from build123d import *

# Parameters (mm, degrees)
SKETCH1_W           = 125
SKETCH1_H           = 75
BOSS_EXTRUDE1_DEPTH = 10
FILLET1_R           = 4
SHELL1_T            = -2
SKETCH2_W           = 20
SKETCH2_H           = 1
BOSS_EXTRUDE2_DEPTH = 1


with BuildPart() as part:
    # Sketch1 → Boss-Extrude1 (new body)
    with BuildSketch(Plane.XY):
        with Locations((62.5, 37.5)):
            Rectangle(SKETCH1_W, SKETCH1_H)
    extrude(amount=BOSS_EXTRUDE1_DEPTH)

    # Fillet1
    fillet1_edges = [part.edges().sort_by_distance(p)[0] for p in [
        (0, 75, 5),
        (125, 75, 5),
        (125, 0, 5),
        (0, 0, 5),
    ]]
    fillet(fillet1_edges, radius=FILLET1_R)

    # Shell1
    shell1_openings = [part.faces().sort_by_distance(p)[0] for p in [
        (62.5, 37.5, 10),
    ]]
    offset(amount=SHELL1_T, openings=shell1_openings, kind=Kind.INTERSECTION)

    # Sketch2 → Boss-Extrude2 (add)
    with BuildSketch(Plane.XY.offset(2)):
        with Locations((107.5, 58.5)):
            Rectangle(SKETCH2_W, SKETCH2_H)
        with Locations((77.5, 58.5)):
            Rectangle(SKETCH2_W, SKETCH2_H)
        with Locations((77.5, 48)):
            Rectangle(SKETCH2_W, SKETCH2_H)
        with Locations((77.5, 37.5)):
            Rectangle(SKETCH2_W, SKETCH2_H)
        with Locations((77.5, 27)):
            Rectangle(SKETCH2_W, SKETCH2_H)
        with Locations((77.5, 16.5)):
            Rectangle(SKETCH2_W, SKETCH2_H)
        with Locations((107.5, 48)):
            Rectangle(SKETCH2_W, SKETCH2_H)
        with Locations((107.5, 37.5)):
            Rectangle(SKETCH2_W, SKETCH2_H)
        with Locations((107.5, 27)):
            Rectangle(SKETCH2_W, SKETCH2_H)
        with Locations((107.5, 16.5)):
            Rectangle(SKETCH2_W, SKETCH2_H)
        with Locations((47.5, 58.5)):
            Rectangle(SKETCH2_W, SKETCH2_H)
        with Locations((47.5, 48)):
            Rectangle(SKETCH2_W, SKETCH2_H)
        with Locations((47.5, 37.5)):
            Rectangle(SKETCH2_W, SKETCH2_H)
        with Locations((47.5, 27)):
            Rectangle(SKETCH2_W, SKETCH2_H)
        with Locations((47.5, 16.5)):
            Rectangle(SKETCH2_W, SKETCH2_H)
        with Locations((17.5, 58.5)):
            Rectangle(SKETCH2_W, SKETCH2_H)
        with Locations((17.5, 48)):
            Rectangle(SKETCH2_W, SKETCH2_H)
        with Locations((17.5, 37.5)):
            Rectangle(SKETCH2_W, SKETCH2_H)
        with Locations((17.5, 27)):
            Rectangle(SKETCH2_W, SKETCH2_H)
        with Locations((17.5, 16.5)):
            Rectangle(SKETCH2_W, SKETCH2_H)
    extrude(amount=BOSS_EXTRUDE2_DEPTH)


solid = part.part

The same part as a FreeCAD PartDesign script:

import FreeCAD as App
import Part
import Sketcher
Q = App.Units.Quantity


def edges_at(feature, points):
    """Names of the edges that pass closest to the given points."""
    edges = feature.Shape.Edges
    near = lambda p: min(range(len(edges)), key=lambda i: edges[i].distToShape(Part.Vertex(*p))[0])
    return sorted({f"Edge{near(p) + 1}" for p in points})


def faces_at(feature, points):
    """Names of the faces that lie closest to the given points."""
    faces = feature.Shape.Faces
    near = lambda p: min(range(len(faces)), key=lambda i: faces[i].distToShape(Part.Vertex(*p))[0])
    return sorted({f"Face{near(p) + 1}" for p in points})

doc = App.newDocument("Part")
body = doc.addObject("PartDesign::Body", "Body")

sketch1 = body.newObject("Sketcher::SketchObject", "Sketch")
sketch1.AttachmentSupport = (doc.getObject("XY_Plane"), [""])
sketch1.MapMode = "FlatFace"
sketch1.addGeometry([
    Part.LineSegment(App.Vector(0, 75, 0), App.Vector(0, 0, 0)),
    Part.LineSegment(App.Vector(0, 0, 0), App.Vector(125, 0, 0)),
    Part.LineSegment(App.Vector(125, 0, 0), App.Vector(125, 75, 0)),
    Part.LineSegment(App.Vector(125, 75, 0), App.Vector(0, 75, 0)),
], False)
sketch1.addConstraint([
    Sketcher.Constraint("Coincident", 0, 2, 1, 1),
    Sketcher.Constraint("Coincident", 1, 2, 2, 1),
    Sketcher.Constraint("Coincident", 2, 2, 3, 1),
    Sketcher.Constraint("Coincident", 3, 2, 0, 1),
    Sketcher.Constraint("Vertical", 0),
    Sketcher.Constraint("Horizontal", 1),
    Sketcher.Constraint("Vertical", 2),
    Sketcher.Constraint("Horizontal", 3),
    Sketcher.Constraint("Coincident", 0, 2, -1, 1),
    Sketcher.Constraint("DistanceX", 1, 1, 1, 2, Q("125 mm")),
    Sketcher.Constraint("DistanceY", 0, 2, 0, 1, Q("75 mm")),
])
pad1 = body.newObject("PartDesign::Pad", "Pad")
pad1.Profile = sketch1
pad1.Length = 10
doc.recompute()

fillet = body.newObject("PartDesign::Fillet", "Fillet")
fillet.Base = (pad1, edges_at(pad1, [
    (0, 75, 5),
    (125, 75, 5),
    (125, 0, 5),
    (0, 0, 5),
]))
fillet.Radius = 4
doc.recompute()

thickness = body.newObject("PartDesign::Thickness", "Thickness")
thickness.Base = (fillet, faces_at(fillet, [(62.5, 37.5, 10)]))
thickness.Value = 2
thickness.Reversed = True
thickness.Join = "Intersection"

sketch2 = body.newObject("Sketcher::SketchObject", "Sketch001")
sketch2.AttachmentSupport = (doc.getObject("XY_Plane"), [""])
sketch2.MapMode = "FlatFace"
sketch2.AttachmentOffset = App.Placement(App.Vector(0, 0, 2), App.Rotation())
sketch2.addGeometry([
    Part.LineSegment(App.Vector(97.5, 59, 0), App.Vector(97.5, 58, 0)),
    Part.LineSegment(App.Vector(97.5, 58, 0), App.Vector(117.5, 58, 0)),
    Part.LineSegment(App.Vector(117.5, 58, 0), App.Vector(117.5, 59, 0)),
    Part.LineSegment(App.Vector(117.5, 59, 0), App.Vector(97.5, 59, 0)),
    Part.LineSegment(App.Vector(67.5, 59, 0), App.Vector(67.5, 58, 0)),
    Part.LineSegment(App.Vector(67.5, 58, 0), App.Vector(87.5, 58, 0)),
    Part.LineSegment(App.Vector(87.5, 58, 0), App.Vector(87.5, 59, 0)),
    Part.LineSegment(App.Vector(87.5, 59, 0), App.Vector(67.5, 59, 0)),
    Part.LineSegment(App.Vector(67.5, 48.5, 0), App.Vector(67.5, 47.5, 0)),
    Part.LineSegment(App.Vector(67.5, 47.5, 0), App.Vector(87.5, 47.5, 0)),
    Part.LineSegment(App.Vector(87.5, 47.5, 0), App.Vector(87.5, 48.5, 0)),
    Part.LineSegment(App.Vector(87.5, 48.5, 0), App.Vector(67.5, 48.5, 0)),
    Part.LineSegment(App.Vector(67.5, 38, 0), App.Vector(67.5, 37, 0)),
    Part.LineSegment(App.Vector(67.5, 37, 0), App.Vector(87.5, 37, 0)),
    Part.LineSegment(App.Vector(87.5, 37, 0), App.Vector(87.5, 38, 0)),
    Part.LineSegment(App.Vector(87.5, 38, 0), App.Vector(67.5, 38, 0)),
    Part.LineSegment(App.Vector(67.5, 27.5, 0), App.Vector(67.5, 26.5, 0)),
    Part.LineSegment(App.Vector(67.5, 26.5, 0), App.Vector(87.5, 26.5, 0)),
    Part.LineSegment(App.Vector(87.5, 26.5, 0), App.Vector(87.5, 27.5, 0)),
    Part.LineSegment(App.Vector(87.5, 27.5, 0), App.Vector(67.5, 27.5, 0)),
    Part.LineSegment(App.Vector(67.5, 17, 0), App.Vector(67.5, 16, 0)),
    Part.LineSegment(App.Vector(67.5, 16, 0), App.Vector(87.5, 16, 0)),
    Part.LineSegment(App.Vector(87.5, 16, 0), App.Vector(87.5, 17, 0)),
    Part.LineSegment(App.Vector(87.5, 17, 0), App.Vector(67.5, 17, 0)),
    Part.LineSegment(App.Vector(97.5, 48.5, 0), App.Vector(97.5, 47.5, 0)),
    Part.LineSegment(App.Vector(97.5, 47.5, 0), App.Vector(117.5, 47.5, 0)),
    Part.LineSegment(App.Vector(117.5, 47.5, 0), App.Vector(117.5, 48.5, 0)),
    Part.LineSegment(App.Vector(117.5, 48.5, 0), App.Vector(97.5, 48.5, 0)),
    Part.LineSegment(App.Vector(97.5, 38, 0), App.Vector(97.5, 37, 0)),
    Part.LineSegment(App.Vector(97.5, 37, 0), App.Vector(117.5, 37, 0)),
    Part.LineSegment(App.Vector(117.5, 37, 0), App.Vector(117.5, 38, 0)),
    Part.LineSegment(App.Vector(117.5, 38, 0), App.Vector(97.5, 38, 0)),
    Part.LineSegment(App.Vector(97.5, 27.5, 0), App.Vector(97.5, 26.5, 0)),
    Part.LineSegment(App.Vector(97.5, 26.5, 0), App.Vector(117.5, 26.5, 0)),
    Part.LineSegment(App.Vector(117.5, 26.5, 0), App.Vector(117.5, 27.5, 0)),
    Part.LineSegment(App.Vector(117.5, 27.5, 0), App.Vector(97.5, 27.5, 0)),
    Part.LineSegment(App.Vector(97.5, 17, 0), App.Vector(97.5, 16, 0)),
    Part.LineSegment(App.Vector(97.5, 16, 0), App.Vector(117.5, 16, 0)),
    Part.LineSegment(App.Vector(117.5, 16, 0), App.Vector(117.5, 17, 0)),
    Part.LineSegment(App.Vector(117.5, 17, 0), App.Vector(97.5, 17, 0)),
    Part.LineSegment(App.Vector(37.5, 59, 0), App.Vector(37.5, 58, 0)),
    Part.LineSegment(App.Vector(37.5, 58, 0), App.Vector(57.5, 58, 0)),
    Part.LineSegment(App.Vector(57.5, 58, 0), App.Vector(57.5, 59, 0)),
    Part.LineSegment(App.Vector(57.5, 59, 0), App.Vector(37.5, 59, 0)),
    Part.LineSegment(App.Vector(37.5, 48.5, 0), App.Vector(37.5, 47.5, 0)),
    Part.LineSegment(App.Vector(37.5, 47.5, 0), App.Vector(57.5, 47.5, 0)),
    Part.LineSegment(App.Vector(57.5, 47.5, 0), App.Vector(57.5, 48.5, 0)),
    Part.LineSegment(App.Vector(57.5, 48.5, 0), App.Vector(37.5, 48.5, 0)),
    Part.LineSegment(App.Vector(37.5, 38, 0), App.Vector(37.5, 37, 0)),
    Part.LineSegment(App.Vector(37.5, 37, 0), App.Vector(57.5, 37, 0)),
    Part.LineSegment(App.Vector(57.5, 37, 0), App.Vector(57.5, 38, 0)),
    Part.LineSegment(App.Vector(57.5, 38, 0), App.Vector(37.5, 38, 0)),
    Part.LineSegment(App.Vector(37.5, 27.5, 0), App.Vector(37.5, 26.5, 0)),
    Part.LineSegment(App.Vector(37.5, 26.5, 0), App.Vector(57.5, 26.5, 0)),
    Part.LineSegment(App.Vector(57.5, 26.5, 0), App.Vector(57.5, 27.5, 0)),
    Part.LineSegment(App.Vector(57.5, 27.5, 0), App.Vector(37.5, 27.5, 0)),
    Part.LineSegment(App.Vector(37.5, 17, 0), App.Vector(37.5, 16, 0)),
    Part.LineSegment(App.Vector(37.5, 16, 0), App.Vector(57.5, 16, 0)),
    Part.LineSegment(App.Vector(57.5, 16, 0), App.Vector(57.5, 17, 0)),
    Part.LineSegment(App.Vector(57.5, 17, 0), App.Vector(37.5, 17, 0)),
    Part.LineSegment(App.Vector(7.5, 59, 0), App.Vector(7.5, 58, 0)),
    Part.LineSegment(App.Vector(7.5, 58, 0), App.Vector(27.5, 58, 0)),
    Part.LineSegment(App.Vector(27.5, 58, 0), App.Vector(27.5, 59, 0)),
    Part.LineSegment(App.Vector(27.5, 59, 0), App.Vector(7.5, 59, 0)),
    Part.LineSegment(App.Vector(7.5, 48.5, 0), App.Vector(7.5, 47.5, 0)),
    Part.LineSegment(App.Vector(7.5, 47.5, 0), App.Vector(27.5, 47.5, 0)),
    Part.LineSegment(App.Vector(27.5, 47.5, 0), App.Vector(27.5, 48.5, 0)),
    Part.LineSegment(App.Vector(27.5, 48.5, 0), App.Vector(7.5, 48.5, 0)),
    Part.LineSegment(App.Vector(7.5, 38, 0), App.Vector(7.5, 37, 0)),
    Part.LineSegment(App.Vector(7.5, 37, 0), App.Vector(27.5, 37, 0)),
    Part.LineSegment(App.Vector(27.5, 37, 0), App.Vector(27.5, 38, 0)),
    Part.LineSegment(App.Vector(27.5, 38, 0), App.Vector(7.5, 38, 0)),
    Part.LineSegment(App.Vector(7.5, 27.5, 0), App.Vector(7.5, 26.5, 0)),
    Part.LineSegment(App.Vector(7.5, 26.5, 0), App.Vector(27.5, 26.5, 0)),
    Part.LineSegment(App.Vector(27.5, 26.5, 0), App.Vector(27.5, 27.5, 0)),
    Part.LineSegment(App.Vector(27.5, 27.5, 0), App.Vector(7.5, 27.5, 0)),
    Part.LineSegment(App.Vector(7.5, 17, 0), App.Vector(7.5, 16, 0)),
    Part.LineSegment(App.Vector(7.5, 16, 0), App.Vector(27.5, 16, 0)),
    Part.LineSegment(App.Vector(27.5, 16, 0), App.Vector(27.5, 17, 0)),
    Part.LineSegment(App.Vector(27.5, 17, 0), App.Vector(7.5, 17, 0)),
], False)
sketch2.addConstraint([
    Sketcher.Constraint("Coincident", 0, 2, 1, 1),
    Sketcher.Constraint("Coincident", 1, 2, 2, 1),
    Sketcher.Constraint("Coincident", 2, 2, 3, 1),
    Sketcher.Constraint("Coincident", 3, 2, 0, 1),
    Sketcher.Constraint("Coincident", 4, 2, 5, 1),
    Sketcher.Constraint("Coincident", 5, 2, 6, 1),
    Sketcher.Constraint("Coincident", 6, 2, 7, 1),
    Sketcher.Constraint("Coincident", 7, 2, 4, 1),
    Sketcher.Constraint("Coincident", 8, 2, 9, 1),
    Sketcher.Constraint("Coincident", 9, 2, 10, 1),
    Sketcher.Constraint("Coincident", 10, 2, 11, 1),
    Sketcher.Constraint("Coincident", 11, 2, 8, 1),
    Sketcher.Constraint("Coincident", 12, 2, 13, 1),
    Sketcher.Constraint("Coincident", 13, 2, 14, 1),
    Sketcher.Constraint("Coincident", 14, 2, 15, 1),
    Sketcher.Constraint("Coincident", 15, 2, 12, 1),
    Sketcher.Constraint("Coincident", 16, 2, 17, 1),
    Sketcher.Constraint("Coincident", 17, 2, 18, 1),
    Sketcher.Constraint("Coincident", 18, 2, 19, 1),
    Sketcher.Constraint("Coincident", 19, 2, 16, 1),
    Sketcher.Constraint("Coincident", 20, 2, 21, 1),
    Sketcher.Constraint("Coincident", 21, 2, 22, 1),
    Sketcher.Constraint("Coincident", 22, 2, 23, 1),
    Sketcher.Constraint("Coincident", 23, 2, 20, 1),
    Sketcher.Constraint("Coincident", 24, 2, 25, 1),
    Sketcher.Constraint("Coincident", 25, 2, 26, 1),
    Sketcher.Constraint("Coincident", 26, 2, 27, 1),
    Sketcher.Constraint("Coincident", 27, 2, 24, 1),
    Sketcher.Constraint("Coincident", 28, 2, 29, 1),
    Sketcher.Constraint("Coincident", 29, 2, 30, 1),
    Sketcher.Constraint("Coincident", 30, 2, 31, 1),
    Sketcher.Constraint("Coincident", 31, 2, 28, 1),
    Sketcher.Constraint("Coincident", 32, 2, 33, 1),
    Sketcher.Constraint("Coincident", 33, 2, 34, 1),
    Sketcher.Constraint("Coincident", 34, 2, 35, 1),
    Sketcher.Constraint("Coincident", 35, 2, 32, 1),
    Sketcher.Constraint("Coincident", 36, 2, 37, 1),
    Sketcher.Constraint("Coincident", 37, 2, 38, 1),
    Sketcher.Constraint("Coincident", 38, 2, 39, 1),
    Sketcher.Constraint("Coincident", 39, 2, 36, 1),
    Sketcher.Constraint("Coincident", 40, 2, 41, 1),
    Sketcher.Constraint("Coincident", 41, 2, 42, 1),
    Sketcher.Constraint("Coincident", 42, 2, 43, 1),
    Sketcher.Constraint("Coincident", 43, 2, 40, 1),
    Sketcher.Constraint("Coincident", 44, 2, 45, 1),
    Sketcher.Constraint("Coincident", 45, 2, 46, 1),
    Sketcher.Constraint("Coincident", 46, 2, 47, 1),
    Sketcher.Constraint("Coincident", 47, 2, 44, 1),
    Sketcher.Constraint("Coincident", 48, 2, 49, 1),
    Sketcher.Constraint("Coincident", 49, 2, 50, 1),
    Sketcher.Constraint("Coincident", 50, 2, 51, 1),
    Sketcher.Constraint("Coincident", 51, 2, 48, 1),
    Sketcher.Constraint("Coincident", 52, 2, 53, 1),
    Sketcher.Constraint("Coincident", 53, 2, 54, 1),
    Sketcher.Constraint("Coincident", 54, 2, 55, 1),
    Sketcher.Constraint("Coincident", 55, 2, 52, 1),
    Sketcher.Constraint("Coincident", 56, 2, 57, 1),
    Sketcher.Constraint("Coincident", 57, 2, 58, 1),
    Sketcher.Constraint("Coincident", 58, 2, 59, 1),
    Sketcher.Constraint("Coincident", 59, 2, 56, 1),
    Sketcher.Constraint("Coincident", 60, 2, 61, 1),
    Sketcher.Constraint("Coincident", 61, 2, 62, 1),
    Sketcher.Constraint("Coincident", 62, 2, 63, 1),
    Sketcher.Constraint("Coincident", 63, 2, 60, 1),
    Sketcher.Constraint("Coincident", 64, 2, 65, 1),
    Sketcher.Constraint("Coincident", 65, 2, 66, 1),
    Sketcher.Constraint("Coincident", 66, 2, 67, 1),
    Sketcher.Constraint("Coincident", 67, 2, 64, 1),
    Sketcher.Constraint("Coincident", 68, 2, 69, 1),
    Sketcher.Constraint("Coincident", 69, 2, 70, 1),
    Sketcher.Constraint("Coincident", 70, 2, 71, 1),
    Sketcher.Constraint("Coincident", 71, 2, 68, 1),
    Sketcher.Constraint("Coincident", 72, 2, 73, 1),
    Sketcher.Constraint("Coincident", 73, 2, 74, 1),
    Sketcher.Constraint("Coincident", 74, 2, 75, 1),
    Sketcher.Constraint("Coincident", 75, 2, 72, 1),
    Sketcher.Constraint("Coincident", 76, 2, 77, 1),
    Sketcher.Constraint("Coincident", 77, 2, 78, 1),
    Sketcher.Constraint("Coincident", 78, 2, 79, 1),
    Sketcher.Constraint("Coincident", 79, 2, 76, 1),
    Sketcher.Constraint("Vertical", 0),
    Sketcher.Constraint("Horizontal", 1),
    Sketcher.Constraint("Vertical", 2),
    Sketcher.Constraint("Horizontal", 3),
    Sketcher.Constraint("Vertical", 4),
    Sketcher.Constraint("Horizontal", 5),
    Sketcher.Constraint("Vertical", 6),
    Sketcher.Constraint("Horizontal", 7),
    Sketcher.Constraint("Vertical", 8),
    Sketcher.Constraint("Horizontal", 9),
    Sketcher.Constraint("Vertical", 10),
    Sketcher.Constraint("Horizontal", 11),
    Sketcher.Constraint("Vertical", 12),
    Sketcher.Constraint("Horizontal", 13),
    Sketcher.Constraint("Vertical", 14),
    Sketcher.Constraint("Horizontal", 15),
    Sketcher.Constraint("Vertical", 16),
    Sketcher.Constraint("Horizontal", 17),
    Sketcher.Constraint("Vertical", 18),
    Sketcher.Constraint("Horizontal", 19),
    Sketcher.Constraint("Vertical", 20),
    Sketcher.Constraint("Horizontal", 21),
    Sketcher.Constraint("Vertical", 22),
    Sketcher.Constraint("Horizontal", 23),
    Sketcher.Constraint("Vertical", 24),
    Sketcher.Constraint("Horizontal", 25),
    Sketcher.Constraint("Vertical", 26),
    Sketcher.Constraint("Horizontal", 27),
    Sketcher.Constraint("Vertical", 28),
    Sketcher.Constraint("Horizontal", 29),
    Sketcher.Constraint("Vertical", 30),
    Sketcher.Constraint("Horizontal", 31),
    Sketcher.Constraint("Vertical", 32),
    Sketcher.Constraint("Horizontal", 33),
    Sketcher.Constraint("Vertical", 34),
    Sketcher.Constraint("Horizontal", 35),
    Sketcher.Constraint("Vertical", 36),
    Sketcher.Constraint("Horizontal", 37),
    Sketcher.Constraint("Vertical", 38),
    Sketcher.Constraint("Horizontal", 39),
    Sketcher.Constraint("Vertical", 40),
    Sketcher.Constraint("Horizontal", 41),
    Sketcher.Constraint("Vertical", 42),
    Sketcher.Constraint("Horizontal", 43),
    Sketcher.Constraint("Vertical", 44),
    Sketcher.Constraint("Horizontal", 45),
    Sketcher.Constraint("Vertical", 46),
    Sketcher.Constraint("Horizontal", 47),
    Sketcher.Constraint("Vertical", 48),
    Sketcher.Constraint("Horizontal", 49),
    Sketcher.Constraint("Vertical", 50),
    Sketcher.Constraint("Horizontal", 51),
    Sketcher.Constraint("Vertical", 52),
    Sketcher.Constraint("Horizontal", 53),
    Sketcher.Constraint("Vertical", 54),
    Sketcher.Constraint("Horizontal", 55),
    Sketcher.Constraint("Vertical", 56),
    Sketcher.Constraint("Horizontal", 57),
    Sketcher.Constraint("Vertical", 58),
    Sketcher.Constraint("Horizontal", 59),
    Sketcher.Constraint("Vertical", 60),
    Sketcher.Constraint("Horizontal", 61),
    Sketcher.Constraint("Vertical", 62),
    Sketcher.Constraint("Horizontal", 63),
    Sketcher.Constraint("Vertical", 64),
    Sketcher.Constraint("Horizontal", 65),
    Sketcher.Constraint("Vertical", 66),
    Sketcher.Constraint("Horizontal", 67),
    Sketcher.Constraint("Vertical", 68),
    Sketcher.Constraint("Horizontal", 69),
    Sketcher.Constraint("Vertical", 70),
    Sketcher.Constraint("Horizontal", 71),
    Sketcher.Constraint("Vertical", 72),
    Sketcher.Constraint("Horizontal", 73),
    Sketcher.Constraint("Vertical", 74),
    Sketcher.Constraint("Horizontal", 75),
    Sketcher.Constraint("Vertical", 76),
    Sketcher.Constraint("Horizontal", 77),
    Sketcher.Constraint("Vertical", 78),
    Sketcher.Constraint("Horizontal", 79),
    Sketcher.Constraint("Horizontal", 1, 2, 4, 2),
    Sketcher.Constraint("Horizontal", 3, 2, 6, 2),
    Sketcher.Constraint("Horizontal", 9, 2, 24, 2),
    Sketcher.Constraint("Horizontal", 11, 2, 26, 2),
    Sketcher.Constraint("Horizontal", 13, 2, 28, 2),
    Sketcher.Constraint("Horizontal", 15, 2, 30, 2),
    Sketcher.Constraint("Horizontal", 17, 2, 32, 2),
    Sketcher.Constraint("Horizontal", 19, 2, 34, 2),
    Sketcher.Constraint("Horizontal", 21, 2, 36, 2),
    Sketcher.Constraint("Horizontal", 23, 2, 38, 2),
    Sketcher.Constraint("Horizontal", 5, 2, 40, 2),
    Sketcher.Constraint("Horizontal", 7, 2, 42, 2),
    Sketcher.Constraint("Horizontal", 25, 2, 44, 2),
    Sketcher.Constraint("Horizontal", 27, 2, 46, 2),
    Sketcher.Constraint("Horizontal", 29, 2, 48, 2),
    Sketcher.Constraint("Horizontal", 31, 2, 50, 2),
    Sketcher.Constraint("Horizontal", 33, 2, 52, 2),
    Sketcher.Constraint("Horizontal", 35, 2, 54, 2),
    Sketcher.Constraint("Horizontal", 37, 2, 56, 2),
    Sketcher.Constraint("Horizontal", 39, 2, 58, 2),
    Sketcher.Constraint("Horizontal", 41, 2, 60, 2),
    Sketcher.Constraint("Horizontal", 43, 2, 62, 2),
    Sketcher.Constraint("Horizontal", 45, 2, 64, 2),
    Sketcher.Constraint("Horizontal", 47, 2, 66, 2),
    Sketcher.Constraint("Horizontal", 49, 2, 68, 2),
    Sketcher.Constraint("Horizontal", 51, 2, 70, 2),
    Sketcher.Constraint("Horizontal", 53, 2, 72, 2),
    Sketcher.Constraint("Horizontal", 55, 2, 74, 2),
    Sketcher.Constraint("Horizontal", 57, 2, 76, 2),
    Sketcher.Constraint("Horizontal", 59, 2, 78, 2),
    Sketcher.Constraint("Vertical", 7, 2, 8, 2),
    Sketcher.Constraint("Vertical", 6, 2, 9, 2),
    Sketcher.Constraint("Vertical", 11, 2, 12, 2),
    Sketcher.Constraint("Vertical", 10, 2, 13, 2),
    Sketcher.Constraint("Vertical", 15, 2, 16, 2),
    Sketcher.Constraint("Vertical", 14, 2, 17, 2),
    Sketcher.Constraint("Vertical", 19, 2, 20, 2),
    Sketcher.Constraint("Vertical", 18, 2, 21, 2),
    Sketcher.Constraint("Vertical", 3, 2, 24, 2),
    Sketcher.Constraint("Vertical", 2, 2, 25, 2),
    Sketcher.Constraint("Vertical", 27, 2, 28, 2),
    Sketcher.Constraint("Vertical", 26, 2, 29, 2),
    Sketcher.Constraint("Vertical", 31, 2, 32, 2),
    Sketcher.Constraint("Vertical", 30, 2, 33, 2),
    Sketcher.Constraint("Vertical", 35, 2, 36, 2),
    Sketcher.Constraint("Vertical", 34, 2, 37, 2),
    Sketcher.Constraint("Vertical", 43, 2, 44, 2),
    Sketcher.Constraint("Vertical", 42, 2, 45, 2),
    Sketcher.Constraint("Vertical", 47, 2, 48, 2),
    Sketcher.Constraint("Vertical", 46, 2, 49, 2),
    Sketcher.Constraint("Vertical", 51, 2, 52, 2),
    Sketcher.Constraint("Vertical", 50, 2, 53, 2),
    Sketcher.Constraint("Vertical", 55, 2, 56, 2),
    Sketcher.Constraint("Vertical", 54, 2, 57, 2),
    Sketcher.Constraint("Vertical", 63, 2, 64, 2),
    Sketcher.Constraint("Vertical", 62, 2, 65, 2),
    Sketcher.Constraint("Vertical", 67, 2, 68, 2),
    Sketcher.Constraint("Vertical", 66, 2, 69, 2),
    Sketcher.Constraint("Vertical", 71, 2, 72, 2),
    Sketcher.Constraint("Vertical", 70, 2, 73, 2),
    Sketcher.Constraint("Vertical", 75, 2, 76, 2),
    Sketcher.Constraint("Vertical", 74, 2, 77, 2),
    Sketcher.Constraint("Equal", 3, 5),
    Sketcher.Constraint("Equal", 39, 41),
    Sketcher.Constraint("Equal", 59, 61),
    Sketcher.Constraint("Equal", 6, 8),
    Sketcher.Constraint("Equal", 10, 12),
    Sketcher.Constraint("Equal", 14, 16),
    Sketcher.Constraint("Equal", 18, 20),
    Sketcher.Constraint("DistanceX", 1, 1, 1, 2, Q("20 mm")),
    Sketcher.Constraint("DistanceY", 0, 2, 0, 1, Q("1 mm")),
    Sketcher.Constraint("DistanceY", -1, 1, 0, 2, Q("58 mm")),
    Sketcher.Constraint("DistanceY", -1, 1, 12, 2, Q("37 mm")),
    Sketcher.Constraint("DistanceY", -1, 1, 20, 2, Q("16 mm")),
    Sketcher.Constraint("DistanceX", -1, 1, 0, 2, Q("97.5 mm")),
    Sketcher.Constraint("DistanceX", -1, 1, 4, 2, Q("67.5 mm")),
    Sketcher.Constraint("DistanceY", -1, 1, 8, 2, Q("47.5 mm")),
    Sketcher.Constraint("DistanceY", -1, 1, 16, 2, Q("26.5 mm")),
    Sketcher.Constraint("DistanceX", -1, 1, 40, 2, Q("37.5 mm")),
    Sketcher.Constraint("DistanceX", -1, 1, 60, 2, Q("7.5 mm")),
])
pad2 = body.newObject("PartDesign::Pad", "Pad001")
pad2.Profile = sketch2
pad2.Length = 1

doc.recompute()
